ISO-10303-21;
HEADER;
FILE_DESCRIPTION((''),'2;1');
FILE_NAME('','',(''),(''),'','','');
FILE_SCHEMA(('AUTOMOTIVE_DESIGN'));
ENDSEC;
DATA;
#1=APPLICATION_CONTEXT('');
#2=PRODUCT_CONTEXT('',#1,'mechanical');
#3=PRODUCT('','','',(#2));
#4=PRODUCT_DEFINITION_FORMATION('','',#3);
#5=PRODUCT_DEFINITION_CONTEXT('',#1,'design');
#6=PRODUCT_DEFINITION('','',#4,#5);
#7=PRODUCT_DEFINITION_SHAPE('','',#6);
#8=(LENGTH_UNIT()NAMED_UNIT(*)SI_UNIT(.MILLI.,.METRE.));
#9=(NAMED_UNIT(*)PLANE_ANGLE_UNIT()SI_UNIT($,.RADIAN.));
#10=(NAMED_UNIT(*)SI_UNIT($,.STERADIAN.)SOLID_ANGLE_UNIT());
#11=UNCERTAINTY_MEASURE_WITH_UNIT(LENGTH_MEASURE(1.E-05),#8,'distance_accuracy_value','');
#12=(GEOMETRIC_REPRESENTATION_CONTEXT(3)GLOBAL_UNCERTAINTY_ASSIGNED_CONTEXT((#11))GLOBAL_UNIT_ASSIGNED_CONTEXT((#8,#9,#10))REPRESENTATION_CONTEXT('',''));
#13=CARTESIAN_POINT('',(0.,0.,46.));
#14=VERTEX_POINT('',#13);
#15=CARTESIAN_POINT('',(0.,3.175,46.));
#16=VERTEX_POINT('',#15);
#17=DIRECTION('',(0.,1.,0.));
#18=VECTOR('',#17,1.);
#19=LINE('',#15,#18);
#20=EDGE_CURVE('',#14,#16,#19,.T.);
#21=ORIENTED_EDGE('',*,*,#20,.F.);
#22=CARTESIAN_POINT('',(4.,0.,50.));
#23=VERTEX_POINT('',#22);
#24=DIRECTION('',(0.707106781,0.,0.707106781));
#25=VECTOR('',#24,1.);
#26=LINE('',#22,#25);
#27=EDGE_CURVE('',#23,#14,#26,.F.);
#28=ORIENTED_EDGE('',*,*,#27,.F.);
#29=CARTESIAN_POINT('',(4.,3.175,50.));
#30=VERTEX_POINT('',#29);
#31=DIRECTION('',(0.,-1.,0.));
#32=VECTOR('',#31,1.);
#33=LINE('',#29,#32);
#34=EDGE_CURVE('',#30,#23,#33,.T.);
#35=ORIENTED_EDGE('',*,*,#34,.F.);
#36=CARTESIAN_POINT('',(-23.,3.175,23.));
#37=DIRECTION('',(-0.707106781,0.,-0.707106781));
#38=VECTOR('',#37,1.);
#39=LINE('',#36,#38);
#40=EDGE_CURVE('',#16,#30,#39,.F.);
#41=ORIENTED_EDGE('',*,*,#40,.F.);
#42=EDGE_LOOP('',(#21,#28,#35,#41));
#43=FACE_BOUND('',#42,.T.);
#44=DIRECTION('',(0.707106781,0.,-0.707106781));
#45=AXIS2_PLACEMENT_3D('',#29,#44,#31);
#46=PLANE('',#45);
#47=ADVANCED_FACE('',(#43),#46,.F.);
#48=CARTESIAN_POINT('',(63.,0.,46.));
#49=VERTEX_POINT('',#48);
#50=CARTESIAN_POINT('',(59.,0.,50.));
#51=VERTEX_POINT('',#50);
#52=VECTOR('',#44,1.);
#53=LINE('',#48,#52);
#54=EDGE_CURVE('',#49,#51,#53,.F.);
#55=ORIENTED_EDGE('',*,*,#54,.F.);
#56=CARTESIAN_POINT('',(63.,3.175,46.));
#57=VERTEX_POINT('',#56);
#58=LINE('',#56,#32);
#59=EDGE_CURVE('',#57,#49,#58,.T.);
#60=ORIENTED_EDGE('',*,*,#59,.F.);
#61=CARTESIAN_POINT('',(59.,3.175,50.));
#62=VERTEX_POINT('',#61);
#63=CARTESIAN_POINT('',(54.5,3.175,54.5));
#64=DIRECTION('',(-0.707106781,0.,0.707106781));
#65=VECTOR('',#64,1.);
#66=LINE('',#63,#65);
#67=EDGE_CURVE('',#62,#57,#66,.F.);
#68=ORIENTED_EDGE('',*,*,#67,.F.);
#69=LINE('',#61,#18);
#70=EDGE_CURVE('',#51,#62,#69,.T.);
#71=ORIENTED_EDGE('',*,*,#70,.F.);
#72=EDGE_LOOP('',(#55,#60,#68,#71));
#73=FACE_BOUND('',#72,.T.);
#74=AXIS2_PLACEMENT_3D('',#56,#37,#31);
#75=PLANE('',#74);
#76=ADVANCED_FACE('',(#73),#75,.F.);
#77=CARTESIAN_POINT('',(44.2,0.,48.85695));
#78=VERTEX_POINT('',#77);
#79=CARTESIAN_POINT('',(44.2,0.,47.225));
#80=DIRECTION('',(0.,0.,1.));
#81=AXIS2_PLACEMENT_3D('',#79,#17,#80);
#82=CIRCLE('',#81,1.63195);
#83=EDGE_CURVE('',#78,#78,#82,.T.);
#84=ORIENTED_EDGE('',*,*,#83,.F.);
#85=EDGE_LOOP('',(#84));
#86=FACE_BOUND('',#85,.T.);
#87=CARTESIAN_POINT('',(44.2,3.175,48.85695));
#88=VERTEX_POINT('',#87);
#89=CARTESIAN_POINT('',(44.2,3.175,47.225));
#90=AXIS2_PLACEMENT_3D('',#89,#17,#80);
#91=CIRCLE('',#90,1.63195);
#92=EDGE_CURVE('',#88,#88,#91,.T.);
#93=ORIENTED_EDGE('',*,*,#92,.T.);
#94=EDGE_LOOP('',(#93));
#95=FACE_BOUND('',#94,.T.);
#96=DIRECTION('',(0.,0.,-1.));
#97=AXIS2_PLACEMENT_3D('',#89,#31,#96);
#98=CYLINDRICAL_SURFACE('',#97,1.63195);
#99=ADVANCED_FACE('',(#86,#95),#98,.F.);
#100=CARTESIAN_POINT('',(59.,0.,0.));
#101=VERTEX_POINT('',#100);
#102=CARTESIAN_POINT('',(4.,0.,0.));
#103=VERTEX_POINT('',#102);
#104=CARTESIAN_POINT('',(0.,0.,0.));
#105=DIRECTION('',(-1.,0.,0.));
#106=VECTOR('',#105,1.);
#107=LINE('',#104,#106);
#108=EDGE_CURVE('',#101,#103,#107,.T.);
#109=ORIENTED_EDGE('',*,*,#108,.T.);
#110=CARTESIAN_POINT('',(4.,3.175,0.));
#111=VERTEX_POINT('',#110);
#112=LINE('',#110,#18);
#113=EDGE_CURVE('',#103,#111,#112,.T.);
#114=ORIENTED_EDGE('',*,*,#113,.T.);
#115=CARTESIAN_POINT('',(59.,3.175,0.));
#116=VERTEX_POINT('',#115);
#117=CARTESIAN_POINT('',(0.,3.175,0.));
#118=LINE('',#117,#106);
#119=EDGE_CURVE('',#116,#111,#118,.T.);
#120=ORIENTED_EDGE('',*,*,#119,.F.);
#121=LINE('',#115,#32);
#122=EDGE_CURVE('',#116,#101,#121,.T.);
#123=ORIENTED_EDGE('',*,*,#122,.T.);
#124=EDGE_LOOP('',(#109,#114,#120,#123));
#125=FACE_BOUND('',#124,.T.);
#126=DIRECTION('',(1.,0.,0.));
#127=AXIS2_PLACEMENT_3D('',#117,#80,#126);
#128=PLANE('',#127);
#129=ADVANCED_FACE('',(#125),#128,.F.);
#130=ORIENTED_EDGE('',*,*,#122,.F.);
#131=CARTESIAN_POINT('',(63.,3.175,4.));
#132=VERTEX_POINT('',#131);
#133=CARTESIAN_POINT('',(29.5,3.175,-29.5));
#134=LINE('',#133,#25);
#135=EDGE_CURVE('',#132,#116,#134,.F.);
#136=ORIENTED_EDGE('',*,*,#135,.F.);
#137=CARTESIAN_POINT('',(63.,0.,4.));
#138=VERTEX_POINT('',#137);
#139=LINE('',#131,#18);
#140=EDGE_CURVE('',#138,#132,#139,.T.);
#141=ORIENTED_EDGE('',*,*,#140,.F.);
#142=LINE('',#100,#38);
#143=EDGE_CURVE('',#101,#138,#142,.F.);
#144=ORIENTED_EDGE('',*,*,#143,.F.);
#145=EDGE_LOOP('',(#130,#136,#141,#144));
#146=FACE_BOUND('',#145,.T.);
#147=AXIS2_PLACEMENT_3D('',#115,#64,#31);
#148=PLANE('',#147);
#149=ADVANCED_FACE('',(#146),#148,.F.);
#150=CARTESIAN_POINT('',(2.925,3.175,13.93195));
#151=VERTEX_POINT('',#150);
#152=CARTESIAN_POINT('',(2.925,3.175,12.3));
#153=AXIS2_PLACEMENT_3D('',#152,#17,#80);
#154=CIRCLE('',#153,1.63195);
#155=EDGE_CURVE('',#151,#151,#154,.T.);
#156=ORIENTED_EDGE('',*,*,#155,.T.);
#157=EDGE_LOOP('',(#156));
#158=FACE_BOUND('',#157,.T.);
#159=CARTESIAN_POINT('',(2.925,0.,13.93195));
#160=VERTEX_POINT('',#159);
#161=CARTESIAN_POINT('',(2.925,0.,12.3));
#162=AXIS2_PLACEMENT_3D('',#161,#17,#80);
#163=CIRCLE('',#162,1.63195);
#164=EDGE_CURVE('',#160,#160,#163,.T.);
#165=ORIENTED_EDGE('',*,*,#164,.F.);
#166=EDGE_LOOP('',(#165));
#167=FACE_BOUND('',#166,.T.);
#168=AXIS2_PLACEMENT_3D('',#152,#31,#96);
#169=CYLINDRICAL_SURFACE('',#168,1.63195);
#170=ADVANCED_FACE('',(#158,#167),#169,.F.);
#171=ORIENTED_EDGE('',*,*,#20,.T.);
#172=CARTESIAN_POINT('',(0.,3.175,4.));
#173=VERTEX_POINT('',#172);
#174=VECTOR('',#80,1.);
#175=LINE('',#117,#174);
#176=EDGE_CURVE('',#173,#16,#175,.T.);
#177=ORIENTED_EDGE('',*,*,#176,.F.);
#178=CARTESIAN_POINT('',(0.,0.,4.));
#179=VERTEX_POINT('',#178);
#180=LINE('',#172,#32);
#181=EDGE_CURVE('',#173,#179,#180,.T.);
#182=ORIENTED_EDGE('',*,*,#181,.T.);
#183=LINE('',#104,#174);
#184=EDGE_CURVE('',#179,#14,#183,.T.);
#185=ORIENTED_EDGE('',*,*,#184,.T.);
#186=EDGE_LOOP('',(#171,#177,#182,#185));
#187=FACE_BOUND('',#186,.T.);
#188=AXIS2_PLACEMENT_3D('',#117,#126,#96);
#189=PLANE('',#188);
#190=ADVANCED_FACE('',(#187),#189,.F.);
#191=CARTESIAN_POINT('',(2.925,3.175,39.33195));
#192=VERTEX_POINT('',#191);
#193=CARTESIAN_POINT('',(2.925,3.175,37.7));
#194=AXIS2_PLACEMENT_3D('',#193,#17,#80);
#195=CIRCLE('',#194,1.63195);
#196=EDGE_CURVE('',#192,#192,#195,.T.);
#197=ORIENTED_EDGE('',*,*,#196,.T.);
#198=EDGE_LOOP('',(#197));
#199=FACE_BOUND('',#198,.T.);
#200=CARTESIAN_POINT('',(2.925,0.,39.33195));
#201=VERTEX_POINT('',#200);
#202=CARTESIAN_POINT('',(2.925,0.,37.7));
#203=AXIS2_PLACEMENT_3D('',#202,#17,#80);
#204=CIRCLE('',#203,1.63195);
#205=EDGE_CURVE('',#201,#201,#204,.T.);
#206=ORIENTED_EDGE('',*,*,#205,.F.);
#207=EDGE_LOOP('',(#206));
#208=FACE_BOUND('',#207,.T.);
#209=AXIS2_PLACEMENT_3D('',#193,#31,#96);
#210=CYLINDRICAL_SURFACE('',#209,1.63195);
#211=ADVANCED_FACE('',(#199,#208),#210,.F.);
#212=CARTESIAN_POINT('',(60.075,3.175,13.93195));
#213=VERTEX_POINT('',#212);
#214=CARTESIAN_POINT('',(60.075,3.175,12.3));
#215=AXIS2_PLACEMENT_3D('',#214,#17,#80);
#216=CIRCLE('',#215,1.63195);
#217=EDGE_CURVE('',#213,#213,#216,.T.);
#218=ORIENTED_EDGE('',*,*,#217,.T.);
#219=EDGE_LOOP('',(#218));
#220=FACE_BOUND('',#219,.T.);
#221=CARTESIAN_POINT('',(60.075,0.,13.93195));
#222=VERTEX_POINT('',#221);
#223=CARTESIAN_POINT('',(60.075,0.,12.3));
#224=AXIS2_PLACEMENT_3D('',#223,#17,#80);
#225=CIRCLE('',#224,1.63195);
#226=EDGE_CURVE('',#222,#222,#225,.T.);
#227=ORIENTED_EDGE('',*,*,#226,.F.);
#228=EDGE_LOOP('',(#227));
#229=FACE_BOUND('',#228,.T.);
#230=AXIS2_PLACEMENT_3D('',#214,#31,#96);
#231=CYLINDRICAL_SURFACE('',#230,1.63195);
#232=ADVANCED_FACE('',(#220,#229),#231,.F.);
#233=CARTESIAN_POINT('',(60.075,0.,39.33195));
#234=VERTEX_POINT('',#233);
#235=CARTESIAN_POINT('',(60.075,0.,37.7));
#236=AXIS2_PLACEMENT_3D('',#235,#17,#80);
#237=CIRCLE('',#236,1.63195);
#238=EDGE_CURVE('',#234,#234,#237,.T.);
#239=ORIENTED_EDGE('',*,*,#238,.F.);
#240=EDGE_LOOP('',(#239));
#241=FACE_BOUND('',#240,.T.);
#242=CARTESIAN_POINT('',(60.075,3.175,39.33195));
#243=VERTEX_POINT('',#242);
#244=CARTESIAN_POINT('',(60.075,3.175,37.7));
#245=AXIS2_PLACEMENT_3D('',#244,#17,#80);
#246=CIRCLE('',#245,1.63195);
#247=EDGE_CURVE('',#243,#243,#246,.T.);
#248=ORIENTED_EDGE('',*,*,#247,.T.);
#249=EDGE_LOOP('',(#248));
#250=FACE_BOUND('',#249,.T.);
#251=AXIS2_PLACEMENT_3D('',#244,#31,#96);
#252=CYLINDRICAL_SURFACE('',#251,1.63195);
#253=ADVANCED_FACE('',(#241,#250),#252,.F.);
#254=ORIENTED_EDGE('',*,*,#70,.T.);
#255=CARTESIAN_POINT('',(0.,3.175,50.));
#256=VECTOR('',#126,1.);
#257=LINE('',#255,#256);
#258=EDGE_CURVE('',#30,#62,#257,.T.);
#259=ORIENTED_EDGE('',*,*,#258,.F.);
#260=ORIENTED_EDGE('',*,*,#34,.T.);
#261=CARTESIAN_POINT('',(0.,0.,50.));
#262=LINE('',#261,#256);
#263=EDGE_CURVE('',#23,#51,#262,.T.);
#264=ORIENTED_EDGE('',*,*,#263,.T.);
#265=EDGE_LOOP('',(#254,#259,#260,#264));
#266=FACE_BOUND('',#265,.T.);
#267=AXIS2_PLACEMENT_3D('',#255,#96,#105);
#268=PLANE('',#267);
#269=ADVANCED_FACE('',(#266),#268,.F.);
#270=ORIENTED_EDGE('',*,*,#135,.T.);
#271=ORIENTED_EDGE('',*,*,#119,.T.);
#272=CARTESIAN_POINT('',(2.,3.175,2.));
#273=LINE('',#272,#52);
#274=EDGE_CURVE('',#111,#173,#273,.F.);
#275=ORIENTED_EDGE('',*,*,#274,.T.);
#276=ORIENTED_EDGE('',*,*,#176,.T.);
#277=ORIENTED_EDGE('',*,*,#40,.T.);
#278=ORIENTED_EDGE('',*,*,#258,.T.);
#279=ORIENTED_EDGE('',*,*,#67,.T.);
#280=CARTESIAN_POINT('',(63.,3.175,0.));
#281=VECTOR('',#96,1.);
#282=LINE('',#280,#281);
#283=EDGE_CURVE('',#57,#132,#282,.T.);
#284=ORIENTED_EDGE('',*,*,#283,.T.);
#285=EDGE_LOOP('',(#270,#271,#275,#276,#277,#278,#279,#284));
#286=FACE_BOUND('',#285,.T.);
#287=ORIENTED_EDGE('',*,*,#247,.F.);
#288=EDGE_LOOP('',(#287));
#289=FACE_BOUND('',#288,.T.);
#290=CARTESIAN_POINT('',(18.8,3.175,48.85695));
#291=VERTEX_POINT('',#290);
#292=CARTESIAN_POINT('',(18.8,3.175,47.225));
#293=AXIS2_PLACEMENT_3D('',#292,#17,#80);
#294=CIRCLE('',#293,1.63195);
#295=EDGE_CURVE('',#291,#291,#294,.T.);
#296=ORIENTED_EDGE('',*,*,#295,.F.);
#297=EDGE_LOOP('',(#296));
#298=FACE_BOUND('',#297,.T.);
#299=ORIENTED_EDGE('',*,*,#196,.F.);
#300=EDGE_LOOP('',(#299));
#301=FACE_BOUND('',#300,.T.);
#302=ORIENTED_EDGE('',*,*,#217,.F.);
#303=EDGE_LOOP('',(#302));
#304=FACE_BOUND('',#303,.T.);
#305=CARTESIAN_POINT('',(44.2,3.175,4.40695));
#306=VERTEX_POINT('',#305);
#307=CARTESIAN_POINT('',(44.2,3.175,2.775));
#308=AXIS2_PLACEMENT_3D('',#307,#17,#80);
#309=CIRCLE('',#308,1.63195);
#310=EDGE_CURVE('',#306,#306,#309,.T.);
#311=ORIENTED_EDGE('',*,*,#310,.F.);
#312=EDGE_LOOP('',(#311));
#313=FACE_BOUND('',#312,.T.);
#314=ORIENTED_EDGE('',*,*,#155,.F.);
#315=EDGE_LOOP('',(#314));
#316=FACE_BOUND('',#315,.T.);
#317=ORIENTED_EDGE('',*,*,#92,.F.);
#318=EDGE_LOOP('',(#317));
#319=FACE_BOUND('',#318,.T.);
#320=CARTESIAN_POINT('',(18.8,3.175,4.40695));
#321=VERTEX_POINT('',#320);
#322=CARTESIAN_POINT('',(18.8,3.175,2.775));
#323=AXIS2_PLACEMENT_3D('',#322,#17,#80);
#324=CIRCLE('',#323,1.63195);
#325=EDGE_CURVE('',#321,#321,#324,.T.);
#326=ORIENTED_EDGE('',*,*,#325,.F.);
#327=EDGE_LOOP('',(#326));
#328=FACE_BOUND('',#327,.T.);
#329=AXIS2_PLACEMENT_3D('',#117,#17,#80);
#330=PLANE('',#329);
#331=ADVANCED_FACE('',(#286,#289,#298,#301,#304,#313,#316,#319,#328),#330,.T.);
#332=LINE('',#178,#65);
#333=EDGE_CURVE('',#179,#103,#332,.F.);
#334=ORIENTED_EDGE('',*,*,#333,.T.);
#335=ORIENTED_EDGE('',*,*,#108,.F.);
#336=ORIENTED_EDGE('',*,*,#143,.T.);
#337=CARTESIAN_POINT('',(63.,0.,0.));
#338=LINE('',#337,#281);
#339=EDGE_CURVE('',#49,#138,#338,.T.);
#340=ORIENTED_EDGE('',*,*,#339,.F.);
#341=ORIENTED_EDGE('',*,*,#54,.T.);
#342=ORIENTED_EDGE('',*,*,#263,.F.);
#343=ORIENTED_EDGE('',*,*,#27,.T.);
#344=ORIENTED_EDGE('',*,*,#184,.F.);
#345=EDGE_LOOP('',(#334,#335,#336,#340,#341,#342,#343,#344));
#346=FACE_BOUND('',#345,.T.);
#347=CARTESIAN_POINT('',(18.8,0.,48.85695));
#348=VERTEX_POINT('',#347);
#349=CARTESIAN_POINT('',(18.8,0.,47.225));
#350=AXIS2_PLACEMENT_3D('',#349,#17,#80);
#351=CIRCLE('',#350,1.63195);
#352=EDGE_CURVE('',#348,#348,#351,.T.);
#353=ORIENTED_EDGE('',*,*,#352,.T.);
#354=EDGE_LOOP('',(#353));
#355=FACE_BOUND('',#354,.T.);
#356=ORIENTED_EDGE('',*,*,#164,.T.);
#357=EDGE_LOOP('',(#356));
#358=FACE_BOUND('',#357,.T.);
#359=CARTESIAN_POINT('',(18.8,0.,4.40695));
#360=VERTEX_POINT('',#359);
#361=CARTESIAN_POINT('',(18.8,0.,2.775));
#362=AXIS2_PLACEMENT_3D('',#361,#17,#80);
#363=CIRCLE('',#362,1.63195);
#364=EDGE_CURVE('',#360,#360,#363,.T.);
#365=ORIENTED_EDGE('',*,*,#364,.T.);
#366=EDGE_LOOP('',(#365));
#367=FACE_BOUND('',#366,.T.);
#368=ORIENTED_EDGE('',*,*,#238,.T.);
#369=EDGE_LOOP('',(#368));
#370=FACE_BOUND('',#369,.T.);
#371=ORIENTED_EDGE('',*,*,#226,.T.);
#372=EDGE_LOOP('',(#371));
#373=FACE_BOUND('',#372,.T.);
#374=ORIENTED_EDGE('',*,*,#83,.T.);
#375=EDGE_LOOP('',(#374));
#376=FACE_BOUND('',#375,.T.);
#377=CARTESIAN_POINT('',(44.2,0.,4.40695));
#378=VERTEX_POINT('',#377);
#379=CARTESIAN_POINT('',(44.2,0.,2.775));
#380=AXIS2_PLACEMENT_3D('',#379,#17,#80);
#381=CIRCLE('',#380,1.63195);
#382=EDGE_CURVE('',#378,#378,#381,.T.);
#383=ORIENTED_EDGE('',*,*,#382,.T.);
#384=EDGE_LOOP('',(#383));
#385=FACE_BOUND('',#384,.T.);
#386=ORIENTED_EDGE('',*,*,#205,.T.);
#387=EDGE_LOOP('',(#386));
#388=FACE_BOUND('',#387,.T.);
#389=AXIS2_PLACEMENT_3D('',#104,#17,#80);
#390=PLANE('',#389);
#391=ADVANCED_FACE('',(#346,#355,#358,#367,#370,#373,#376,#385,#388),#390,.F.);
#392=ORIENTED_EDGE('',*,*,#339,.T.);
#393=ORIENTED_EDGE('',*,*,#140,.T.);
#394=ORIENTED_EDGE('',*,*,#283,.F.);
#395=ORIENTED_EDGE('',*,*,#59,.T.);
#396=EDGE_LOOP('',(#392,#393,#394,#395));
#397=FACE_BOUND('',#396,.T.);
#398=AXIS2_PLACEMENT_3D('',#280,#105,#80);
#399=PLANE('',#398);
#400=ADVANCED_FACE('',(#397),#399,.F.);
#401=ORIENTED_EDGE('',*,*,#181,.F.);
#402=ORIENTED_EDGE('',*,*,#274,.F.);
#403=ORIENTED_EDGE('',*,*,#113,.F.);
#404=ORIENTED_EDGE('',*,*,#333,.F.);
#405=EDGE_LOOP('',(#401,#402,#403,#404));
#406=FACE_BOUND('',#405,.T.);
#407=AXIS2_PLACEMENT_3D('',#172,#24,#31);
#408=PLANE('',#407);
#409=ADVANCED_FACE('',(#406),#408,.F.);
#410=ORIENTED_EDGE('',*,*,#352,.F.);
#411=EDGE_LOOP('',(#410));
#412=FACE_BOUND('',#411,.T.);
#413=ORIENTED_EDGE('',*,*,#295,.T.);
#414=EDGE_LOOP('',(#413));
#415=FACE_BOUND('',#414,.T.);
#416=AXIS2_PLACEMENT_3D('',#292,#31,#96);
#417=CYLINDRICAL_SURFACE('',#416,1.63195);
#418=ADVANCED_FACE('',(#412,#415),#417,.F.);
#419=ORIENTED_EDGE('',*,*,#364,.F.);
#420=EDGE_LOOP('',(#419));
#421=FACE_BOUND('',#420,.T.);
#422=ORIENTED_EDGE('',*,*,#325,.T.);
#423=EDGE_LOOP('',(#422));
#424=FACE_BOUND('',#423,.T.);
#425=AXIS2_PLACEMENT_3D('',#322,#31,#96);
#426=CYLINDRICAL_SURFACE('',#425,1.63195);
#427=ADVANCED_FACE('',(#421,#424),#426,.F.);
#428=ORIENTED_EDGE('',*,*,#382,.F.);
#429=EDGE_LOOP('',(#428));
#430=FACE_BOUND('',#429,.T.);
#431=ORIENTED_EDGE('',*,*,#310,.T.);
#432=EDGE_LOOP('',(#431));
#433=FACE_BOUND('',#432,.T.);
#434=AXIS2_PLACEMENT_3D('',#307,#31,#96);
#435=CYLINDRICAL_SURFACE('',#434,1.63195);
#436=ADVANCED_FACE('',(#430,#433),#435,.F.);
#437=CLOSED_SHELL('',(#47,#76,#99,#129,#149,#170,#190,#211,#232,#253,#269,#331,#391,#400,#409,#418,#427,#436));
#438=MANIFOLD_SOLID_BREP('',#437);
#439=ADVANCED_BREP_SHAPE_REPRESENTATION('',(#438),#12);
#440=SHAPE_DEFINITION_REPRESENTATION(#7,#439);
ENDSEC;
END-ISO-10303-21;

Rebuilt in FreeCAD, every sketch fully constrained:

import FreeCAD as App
import Part
import Sketcher
Q = App.Units.Quantity


def edges_at(feature, points):
    """Names of the edges that pass closest to the given points."""
    edges = feature.Shape.Edges
    near = lambda p: min(range(len(edges)), key=lambda i: edges[i].distToShape(Part.Vertex(*p))[0])
    return sorted({f"Edge{near(p) + 1}" for p in points})

doc = App.newDocument("Part")
body = doc.addObject("PartDesign::Body", "Body")

# Sketch on XZ plane
sketch1 = body.newObject("Sketcher::SketchObject", "Sketch")
sketch1.AttachmentSupport = (doc.getObject("XZ_Plane"), [""])
sketch1.MapMode = "FlatFace"
sketch1.addGeometry(Part.LineSegment(App.Vector(0, 0, 0), App.Vector(0, 50, 0)), False)
sketch1.addGeometry(Part.LineSegment(App.Vector(0, 50, 0), App.Vector(63, 50, 0)), False)
sketch1.addGeometry(Part.LineSegment(App.Vector(63, 50, 0), App.Vector(63, 0, 0)), False)
sketch1.addGeometry(Part.LineSegment(App.Vector(63, 0, 0), App.Vector(0, 0, 0)), False)
sketch1.addGeometry(Part.Circle(App.Vector(2.9, 37.7, 0), App.Vector(0, 0, 1), 1.6), False)
sketch1.addGeometry(Part.Circle(App.Vector(18.8, 47.2, 0), App.Vector(0, 0, 1), 1.6), False)
sketch1.addGeometry(Part.Circle(App.Vector(44.2, 47.2, 0), App.Vector(0, 0, 1), 1.6), False)
sketch1.addGeometry(Part.Circle(App.Vector(60.1, 37.7, 0), App.Vector(0, 0, 1), 1.6), False)
sketch1.addGeometry(Part.Circle(App.Vector(2.9, 12.3, 0), App.Vector(0, 0, 1), 1.6), False)
sketch1.addGeometry(Part.Circle(App.Vector(18.8, 2.8, 0), App.Vector(0, 0, 1), 1.6), False)
sketch1.addGeometry(Part.Circle(App.Vector(44.2, 2.8, 0), App.Vector(0, 0, 1), 1.6), False)
sketch1.addGeometry(Part.Circle(App.Vector(60.1, 12.3, 0), App.Vector(0, 0, 1), 1.6), False)
sketch1.addConstraint(Sketcher.Constraint("Coincident", 0, 2, 1, 1))
sketch1.addConstraint(Sketcher.Constraint("Coincident", 1, 2, 2, 1))
sketch1.addConstraint(Sketcher.Constraint("Coincident", 2, 2, 3, 1))
sketch1.addConstraint(Sketcher.Constraint("Coincident", 3, 2, 0, 1))
sketch1.addConstraint(Sketcher.Constraint("Vertical", 0))
sketch1.addConstraint(Sketcher.Constraint("Horizontal", 1))
sketch1.addConstraint(Sketcher.Constraint("Vertical", 2))
sketch1.addConstraint(Sketcher.Constraint("Horizontal", 3))
sketch1.addConstraint(Sketcher.Constraint("Coincident", 3, 2, -1, 1))
sketch1.addConstraint(Sketcher.Constraint("Equal", 4, 5))
sketch1.addConstraint(Sketcher.Constraint("Equal", 5, 6))
sketch1.addConstraint(Sketcher.Constraint("Equal", 6, 7))
sketch1.addConstraint(Sketcher.Constraint("Equal", 7, 8))
sketch1.addConstraint(Sketcher.Constraint("Equal", 8, 9))
sketch1.addConstraint(Sketcher.Constraint("Equal", 9, 10))
sketch1.addConstraint(Sketcher.Constraint("Equal", 10, 11))
sketch1.addConstraint(Sketcher.Constraint("Horizontal", 5, 3, 6, 3))
sketch1.addConstraint(Sketcher.Constraint("Horizontal", 4, 3, 7, 3))
sketch1.addConstraint(Sketcher.Constraint("Horizontal", 9, 3, 10, 3))
sketch1.addConstraint(Sketcher.Constraint("Horizontal", 8, 3, 11, 3))
sketch1.addConstraint(Sketcher.Constraint("Vertical", 4, 3, 8, 3))
sketch1.addConstraint(Sketcher.Constraint("Vertical", 5, 3, 9, 3))
sketch1.addConstraint(Sketcher.Constraint("Vertical", 6, 3, 10, 3))
sketch1.addConstraint(Sketcher.Constraint("Vertical", 7, 3, 11, 3))
sketch1.addConstraint(Sketcher.Constraint("DistanceX", 1, 1, 1, 2, Q("63 mm")))
sketch1.addConstraint(Sketcher.Constraint("DistanceY", 0, 1, 0, 2, Q("50 mm")))
sketch1.addConstraint(Sketcher.Constraint("Diameter", 4, Q("3.2639 mm")))
sketch1.addConstraint(Sketcher.Constraint("DistanceY", -1, 1, 4, 3, Q("37.7 mm")))
sketch1.addConstraint(Sketcher.Constraint("DistanceX", -1, 1, 5, 3, Q("18.8 mm")))
sketch1.addConstraint(Sketcher.Constraint("DistanceX", -1, 1, 6, 3, Q("44.2 mm")))
sketch1.addConstraint(Sketcher.Constraint("DistanceY", -1, 1, 8, 3, Q("12.3 mm")))
sketch1.addConstraint(Sketcher.Constraint("DistanceX", 4, 3, 7, 3, Q("57.15 mm")))
sketch1.addConstraint(Sketcher.Constraint("DistanceY", 9, 3, 5, 3, Q("44.45 mm")))
sketch1.addConstraint(Sketcher.Constraint("DistanceX", -1, 1, 4, 3, Q("2.925 mm")))
sketch1.addConstraint(Sketcher.Constraint("DistanceY", -1, 1, 5, 3, Q("47.225 mm")))
pad1 = body.newObject("PartDesign::Pad", "Pad")
pad1.Profile = sketch1
pad1.Length = 3.175
pad1.Reversed = True
doc.recompute()

chamfer = body.newObject("PartDesign::Chamfer", "Chamfer")
chamfer.Base = (pad1, edges_at(pad1, [
    (0, 1.587, 0),
    (63, 1.587, 0),
    (63, 1.587, 50),
    (0, 1.587, 50),
]))
chamfer.Size = 4

doc.recompute()
